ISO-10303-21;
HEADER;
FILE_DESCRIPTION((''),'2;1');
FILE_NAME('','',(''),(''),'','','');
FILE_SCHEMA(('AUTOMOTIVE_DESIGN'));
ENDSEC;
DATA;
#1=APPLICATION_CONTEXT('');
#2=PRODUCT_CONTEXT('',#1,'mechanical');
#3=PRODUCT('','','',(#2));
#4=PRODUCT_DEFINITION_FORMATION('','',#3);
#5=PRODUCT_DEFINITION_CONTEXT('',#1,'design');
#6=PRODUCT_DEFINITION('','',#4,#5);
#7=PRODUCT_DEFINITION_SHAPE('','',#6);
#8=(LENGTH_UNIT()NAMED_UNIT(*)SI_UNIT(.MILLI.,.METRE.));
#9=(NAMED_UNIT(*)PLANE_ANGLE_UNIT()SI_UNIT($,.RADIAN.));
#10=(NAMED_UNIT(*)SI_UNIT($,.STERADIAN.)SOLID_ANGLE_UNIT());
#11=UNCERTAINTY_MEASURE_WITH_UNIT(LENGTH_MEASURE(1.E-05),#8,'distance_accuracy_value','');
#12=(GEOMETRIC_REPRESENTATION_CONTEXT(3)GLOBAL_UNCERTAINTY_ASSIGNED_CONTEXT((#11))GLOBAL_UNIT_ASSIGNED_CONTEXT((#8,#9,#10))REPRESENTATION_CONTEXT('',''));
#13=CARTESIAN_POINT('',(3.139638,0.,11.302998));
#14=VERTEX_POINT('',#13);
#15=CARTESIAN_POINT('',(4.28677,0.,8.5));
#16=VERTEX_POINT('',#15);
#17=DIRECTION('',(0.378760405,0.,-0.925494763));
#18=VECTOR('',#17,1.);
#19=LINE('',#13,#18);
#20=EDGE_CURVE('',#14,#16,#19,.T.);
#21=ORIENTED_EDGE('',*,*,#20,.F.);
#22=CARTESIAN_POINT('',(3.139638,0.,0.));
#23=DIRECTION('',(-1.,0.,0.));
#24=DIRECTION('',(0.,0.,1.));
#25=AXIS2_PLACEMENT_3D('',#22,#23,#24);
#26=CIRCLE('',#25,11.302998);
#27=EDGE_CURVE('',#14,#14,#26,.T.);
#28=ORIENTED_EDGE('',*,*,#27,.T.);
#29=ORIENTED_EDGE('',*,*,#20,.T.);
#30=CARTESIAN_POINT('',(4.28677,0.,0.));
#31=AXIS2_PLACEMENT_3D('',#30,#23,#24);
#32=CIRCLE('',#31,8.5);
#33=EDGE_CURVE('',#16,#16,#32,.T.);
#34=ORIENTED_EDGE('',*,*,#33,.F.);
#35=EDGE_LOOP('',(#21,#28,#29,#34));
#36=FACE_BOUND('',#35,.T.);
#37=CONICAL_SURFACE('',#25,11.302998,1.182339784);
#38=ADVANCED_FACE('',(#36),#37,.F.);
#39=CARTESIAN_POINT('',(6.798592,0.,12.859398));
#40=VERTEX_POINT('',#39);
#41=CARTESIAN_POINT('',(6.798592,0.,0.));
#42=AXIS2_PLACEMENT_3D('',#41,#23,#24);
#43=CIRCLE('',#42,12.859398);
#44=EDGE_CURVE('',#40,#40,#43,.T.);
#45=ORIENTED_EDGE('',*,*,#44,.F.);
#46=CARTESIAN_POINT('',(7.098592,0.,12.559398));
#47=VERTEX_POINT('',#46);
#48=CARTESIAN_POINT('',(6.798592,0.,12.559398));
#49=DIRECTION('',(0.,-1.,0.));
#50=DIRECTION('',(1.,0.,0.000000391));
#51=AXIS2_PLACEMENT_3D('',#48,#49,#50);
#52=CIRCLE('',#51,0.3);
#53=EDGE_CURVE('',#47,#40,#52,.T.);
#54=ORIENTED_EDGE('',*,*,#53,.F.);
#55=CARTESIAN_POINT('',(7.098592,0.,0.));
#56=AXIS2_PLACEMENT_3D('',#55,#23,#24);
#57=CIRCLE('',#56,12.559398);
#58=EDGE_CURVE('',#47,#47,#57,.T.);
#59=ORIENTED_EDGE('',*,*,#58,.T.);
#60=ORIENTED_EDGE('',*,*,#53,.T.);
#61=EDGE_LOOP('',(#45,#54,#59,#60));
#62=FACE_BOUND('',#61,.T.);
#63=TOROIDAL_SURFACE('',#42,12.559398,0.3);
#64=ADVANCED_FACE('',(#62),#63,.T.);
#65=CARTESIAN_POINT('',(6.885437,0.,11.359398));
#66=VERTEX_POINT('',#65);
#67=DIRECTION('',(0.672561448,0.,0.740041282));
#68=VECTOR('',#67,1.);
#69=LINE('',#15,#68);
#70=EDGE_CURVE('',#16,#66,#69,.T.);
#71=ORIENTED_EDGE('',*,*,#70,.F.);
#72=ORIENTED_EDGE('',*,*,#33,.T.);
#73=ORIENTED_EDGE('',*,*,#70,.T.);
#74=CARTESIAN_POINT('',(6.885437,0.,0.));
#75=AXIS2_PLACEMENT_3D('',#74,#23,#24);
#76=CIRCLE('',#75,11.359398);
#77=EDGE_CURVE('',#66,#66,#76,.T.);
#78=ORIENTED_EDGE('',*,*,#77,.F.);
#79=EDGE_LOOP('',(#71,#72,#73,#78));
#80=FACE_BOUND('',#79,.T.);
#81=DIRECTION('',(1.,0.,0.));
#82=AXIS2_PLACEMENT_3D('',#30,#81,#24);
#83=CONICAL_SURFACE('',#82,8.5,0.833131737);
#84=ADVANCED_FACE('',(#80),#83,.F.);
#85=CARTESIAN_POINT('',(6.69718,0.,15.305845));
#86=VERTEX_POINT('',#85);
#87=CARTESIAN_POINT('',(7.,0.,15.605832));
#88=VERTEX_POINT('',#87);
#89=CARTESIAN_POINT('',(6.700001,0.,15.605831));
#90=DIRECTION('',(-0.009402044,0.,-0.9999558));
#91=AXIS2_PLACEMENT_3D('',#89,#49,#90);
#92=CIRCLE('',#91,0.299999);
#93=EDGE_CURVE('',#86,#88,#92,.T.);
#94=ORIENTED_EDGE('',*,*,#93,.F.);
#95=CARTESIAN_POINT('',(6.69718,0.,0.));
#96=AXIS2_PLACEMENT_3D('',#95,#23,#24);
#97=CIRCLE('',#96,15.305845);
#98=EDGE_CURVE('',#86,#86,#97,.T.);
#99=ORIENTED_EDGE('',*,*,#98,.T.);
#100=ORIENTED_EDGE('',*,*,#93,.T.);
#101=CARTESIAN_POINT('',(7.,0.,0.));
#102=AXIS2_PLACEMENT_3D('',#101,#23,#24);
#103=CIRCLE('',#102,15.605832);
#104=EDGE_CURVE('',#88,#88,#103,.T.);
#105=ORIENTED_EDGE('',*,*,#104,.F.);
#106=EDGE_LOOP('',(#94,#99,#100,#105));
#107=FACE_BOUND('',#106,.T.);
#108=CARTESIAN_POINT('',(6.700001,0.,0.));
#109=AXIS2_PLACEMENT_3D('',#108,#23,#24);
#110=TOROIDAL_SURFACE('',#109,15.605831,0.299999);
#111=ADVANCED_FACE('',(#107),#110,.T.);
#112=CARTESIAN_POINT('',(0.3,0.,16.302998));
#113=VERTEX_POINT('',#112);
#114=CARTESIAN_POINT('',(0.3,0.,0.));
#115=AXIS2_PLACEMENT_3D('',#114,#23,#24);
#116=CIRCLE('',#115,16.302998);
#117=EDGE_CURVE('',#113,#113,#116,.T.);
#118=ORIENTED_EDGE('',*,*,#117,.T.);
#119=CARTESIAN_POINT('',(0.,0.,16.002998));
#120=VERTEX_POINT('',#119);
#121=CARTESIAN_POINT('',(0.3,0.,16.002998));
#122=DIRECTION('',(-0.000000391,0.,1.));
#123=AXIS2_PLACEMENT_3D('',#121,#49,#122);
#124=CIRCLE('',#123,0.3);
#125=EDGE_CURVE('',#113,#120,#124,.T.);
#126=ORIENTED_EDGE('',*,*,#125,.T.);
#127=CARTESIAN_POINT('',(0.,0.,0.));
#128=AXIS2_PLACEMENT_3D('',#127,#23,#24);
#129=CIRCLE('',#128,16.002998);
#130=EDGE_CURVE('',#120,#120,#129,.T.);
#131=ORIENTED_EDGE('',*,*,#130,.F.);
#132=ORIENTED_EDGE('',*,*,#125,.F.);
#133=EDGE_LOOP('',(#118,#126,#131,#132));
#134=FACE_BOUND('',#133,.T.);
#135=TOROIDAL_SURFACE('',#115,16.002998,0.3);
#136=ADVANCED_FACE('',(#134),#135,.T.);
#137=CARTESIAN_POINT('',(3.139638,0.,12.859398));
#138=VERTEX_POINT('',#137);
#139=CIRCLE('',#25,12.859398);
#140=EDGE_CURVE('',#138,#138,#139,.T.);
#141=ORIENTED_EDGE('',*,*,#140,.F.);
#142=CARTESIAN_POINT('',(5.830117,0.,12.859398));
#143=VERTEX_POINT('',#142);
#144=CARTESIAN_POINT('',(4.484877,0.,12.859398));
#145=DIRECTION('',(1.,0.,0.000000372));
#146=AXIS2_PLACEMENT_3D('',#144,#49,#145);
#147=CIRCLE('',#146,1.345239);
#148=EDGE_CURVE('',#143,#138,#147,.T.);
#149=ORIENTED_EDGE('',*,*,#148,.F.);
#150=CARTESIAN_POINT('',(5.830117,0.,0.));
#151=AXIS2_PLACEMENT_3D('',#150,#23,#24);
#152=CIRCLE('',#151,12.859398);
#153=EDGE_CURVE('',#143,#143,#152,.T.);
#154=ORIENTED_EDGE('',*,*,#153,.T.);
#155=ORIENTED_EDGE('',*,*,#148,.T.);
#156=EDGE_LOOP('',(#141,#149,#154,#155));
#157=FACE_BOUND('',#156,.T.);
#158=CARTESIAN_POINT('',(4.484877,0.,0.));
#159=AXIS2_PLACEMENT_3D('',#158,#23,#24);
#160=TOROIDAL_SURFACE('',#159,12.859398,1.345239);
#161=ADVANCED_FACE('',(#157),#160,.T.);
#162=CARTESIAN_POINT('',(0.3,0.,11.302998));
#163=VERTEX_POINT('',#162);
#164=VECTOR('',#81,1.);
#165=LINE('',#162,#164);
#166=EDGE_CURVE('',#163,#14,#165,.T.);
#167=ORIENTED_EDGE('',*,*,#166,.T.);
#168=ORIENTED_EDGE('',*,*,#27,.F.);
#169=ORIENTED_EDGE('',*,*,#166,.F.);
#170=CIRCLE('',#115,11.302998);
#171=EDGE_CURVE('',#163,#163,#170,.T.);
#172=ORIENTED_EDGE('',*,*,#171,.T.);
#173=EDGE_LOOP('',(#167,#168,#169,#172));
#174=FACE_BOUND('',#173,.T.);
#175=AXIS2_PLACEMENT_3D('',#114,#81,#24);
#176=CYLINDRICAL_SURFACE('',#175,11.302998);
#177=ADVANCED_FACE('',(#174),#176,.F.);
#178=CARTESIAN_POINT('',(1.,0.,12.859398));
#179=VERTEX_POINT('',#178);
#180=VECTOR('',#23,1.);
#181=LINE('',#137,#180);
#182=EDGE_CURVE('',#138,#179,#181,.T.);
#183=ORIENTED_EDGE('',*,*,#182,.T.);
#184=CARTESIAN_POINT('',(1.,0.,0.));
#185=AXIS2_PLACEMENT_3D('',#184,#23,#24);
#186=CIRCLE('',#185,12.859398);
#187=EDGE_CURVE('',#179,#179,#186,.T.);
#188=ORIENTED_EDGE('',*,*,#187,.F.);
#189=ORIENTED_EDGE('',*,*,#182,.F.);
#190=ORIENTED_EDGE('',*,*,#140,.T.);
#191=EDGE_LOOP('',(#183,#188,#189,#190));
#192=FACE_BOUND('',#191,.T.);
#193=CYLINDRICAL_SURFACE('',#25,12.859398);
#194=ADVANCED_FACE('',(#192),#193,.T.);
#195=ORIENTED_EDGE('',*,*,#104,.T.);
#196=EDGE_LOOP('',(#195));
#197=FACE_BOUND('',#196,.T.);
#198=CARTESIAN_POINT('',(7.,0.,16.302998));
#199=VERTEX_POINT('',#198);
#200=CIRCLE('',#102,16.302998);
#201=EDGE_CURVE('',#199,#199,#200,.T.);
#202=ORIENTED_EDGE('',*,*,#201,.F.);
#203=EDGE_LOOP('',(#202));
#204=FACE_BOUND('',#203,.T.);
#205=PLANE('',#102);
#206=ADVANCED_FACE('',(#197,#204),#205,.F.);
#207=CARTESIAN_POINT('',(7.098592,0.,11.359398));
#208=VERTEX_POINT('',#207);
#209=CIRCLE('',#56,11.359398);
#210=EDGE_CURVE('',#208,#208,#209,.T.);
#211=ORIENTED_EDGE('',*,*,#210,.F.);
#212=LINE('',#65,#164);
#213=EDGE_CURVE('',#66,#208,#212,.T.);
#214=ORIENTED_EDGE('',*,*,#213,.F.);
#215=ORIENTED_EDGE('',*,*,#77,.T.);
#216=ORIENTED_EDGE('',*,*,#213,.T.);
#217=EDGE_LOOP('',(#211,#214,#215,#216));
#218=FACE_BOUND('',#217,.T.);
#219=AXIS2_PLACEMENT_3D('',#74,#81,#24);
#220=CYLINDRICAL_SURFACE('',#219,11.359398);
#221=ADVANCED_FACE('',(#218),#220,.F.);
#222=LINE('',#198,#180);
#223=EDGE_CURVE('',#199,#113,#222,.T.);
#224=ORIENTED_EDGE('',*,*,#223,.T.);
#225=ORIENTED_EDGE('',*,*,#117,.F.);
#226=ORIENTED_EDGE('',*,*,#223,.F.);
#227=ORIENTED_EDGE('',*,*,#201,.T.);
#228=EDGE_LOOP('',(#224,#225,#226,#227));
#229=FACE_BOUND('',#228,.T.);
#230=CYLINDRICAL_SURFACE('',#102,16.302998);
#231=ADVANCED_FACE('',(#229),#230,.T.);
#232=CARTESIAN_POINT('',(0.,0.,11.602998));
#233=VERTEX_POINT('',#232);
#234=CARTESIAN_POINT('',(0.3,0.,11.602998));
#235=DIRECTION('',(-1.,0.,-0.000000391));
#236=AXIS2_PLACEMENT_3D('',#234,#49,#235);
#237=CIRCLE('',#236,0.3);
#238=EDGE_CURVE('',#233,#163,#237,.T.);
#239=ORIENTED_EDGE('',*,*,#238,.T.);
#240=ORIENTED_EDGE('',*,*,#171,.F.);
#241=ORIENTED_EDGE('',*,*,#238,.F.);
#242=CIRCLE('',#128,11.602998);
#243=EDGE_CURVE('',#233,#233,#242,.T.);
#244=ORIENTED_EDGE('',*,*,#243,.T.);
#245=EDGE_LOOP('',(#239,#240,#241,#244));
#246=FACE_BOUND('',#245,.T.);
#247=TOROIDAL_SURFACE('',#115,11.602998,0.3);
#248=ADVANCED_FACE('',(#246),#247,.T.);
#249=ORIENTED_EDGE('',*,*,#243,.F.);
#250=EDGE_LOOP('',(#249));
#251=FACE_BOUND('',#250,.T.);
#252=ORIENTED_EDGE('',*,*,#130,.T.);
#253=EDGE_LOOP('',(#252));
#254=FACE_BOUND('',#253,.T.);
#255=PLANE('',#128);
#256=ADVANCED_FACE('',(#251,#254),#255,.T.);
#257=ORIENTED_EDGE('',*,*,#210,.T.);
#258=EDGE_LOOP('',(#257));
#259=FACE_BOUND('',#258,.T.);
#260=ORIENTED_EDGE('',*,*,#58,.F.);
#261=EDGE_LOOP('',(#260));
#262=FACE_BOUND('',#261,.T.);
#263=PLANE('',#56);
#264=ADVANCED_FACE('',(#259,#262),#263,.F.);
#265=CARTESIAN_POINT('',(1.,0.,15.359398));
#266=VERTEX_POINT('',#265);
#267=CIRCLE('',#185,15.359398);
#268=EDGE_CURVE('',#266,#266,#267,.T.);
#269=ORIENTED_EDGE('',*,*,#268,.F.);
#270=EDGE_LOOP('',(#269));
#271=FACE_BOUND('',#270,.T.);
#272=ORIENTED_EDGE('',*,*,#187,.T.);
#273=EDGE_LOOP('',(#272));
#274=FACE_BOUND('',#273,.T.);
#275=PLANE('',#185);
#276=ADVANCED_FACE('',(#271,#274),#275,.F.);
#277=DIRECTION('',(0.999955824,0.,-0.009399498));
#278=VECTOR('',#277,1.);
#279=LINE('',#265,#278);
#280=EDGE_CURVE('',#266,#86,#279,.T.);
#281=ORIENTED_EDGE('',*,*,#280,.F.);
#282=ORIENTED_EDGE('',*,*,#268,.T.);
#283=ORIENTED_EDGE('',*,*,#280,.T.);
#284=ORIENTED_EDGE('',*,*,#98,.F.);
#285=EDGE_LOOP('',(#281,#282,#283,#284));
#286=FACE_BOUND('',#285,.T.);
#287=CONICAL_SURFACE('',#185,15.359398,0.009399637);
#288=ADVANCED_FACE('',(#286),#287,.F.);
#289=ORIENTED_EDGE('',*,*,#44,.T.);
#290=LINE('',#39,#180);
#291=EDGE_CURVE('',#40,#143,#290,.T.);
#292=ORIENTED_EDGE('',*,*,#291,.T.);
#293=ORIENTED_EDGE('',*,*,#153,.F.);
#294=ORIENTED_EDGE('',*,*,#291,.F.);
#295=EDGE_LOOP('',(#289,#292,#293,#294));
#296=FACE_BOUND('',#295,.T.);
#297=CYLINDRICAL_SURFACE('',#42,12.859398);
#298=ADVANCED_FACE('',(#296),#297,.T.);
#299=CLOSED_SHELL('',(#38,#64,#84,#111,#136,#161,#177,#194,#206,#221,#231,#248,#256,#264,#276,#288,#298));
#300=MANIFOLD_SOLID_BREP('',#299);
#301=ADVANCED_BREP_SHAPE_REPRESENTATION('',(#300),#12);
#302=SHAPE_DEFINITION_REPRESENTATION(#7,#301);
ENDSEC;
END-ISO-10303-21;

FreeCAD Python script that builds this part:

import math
import FreeCAD as App
import Part
import Sketcher
Q = App.Units.Quantity

doc = App.newDocument("Part")
body = doc.addObject("PartDesign::Body", "Body")

# Sketch on XZ plane
sketch1 = doc.addObject("Sketcher::SketchObject", "Sketch")
body.addObject(sketch1)
sketch1.AttachmentSupport = (doc.XZ_Plane, [""])
sketch1.MapMode = "FlatFace"
sketch1.addGeometry([
    Part.LineSegment(App.Vector(7, 15.61, 0), App.Vector(7, 16.3, 0)),  # 0
    Part.LineSegment(App.Vector(7, 16.3, 0), App.Vector(0.3, 16.3, 0)),  # 1
    Part.ArcOfCircle(Part.Circle(App.Vector(0.3, 16, 0), App.Vector(0, 0, 1), 0.3), math.radians(90), math.radians(180)),  # 2
    Part.LineSegment(App.Vector(0, 16, 0), App.Vector(0, 11.6, 0)),  # 3
    Part.ArcOfCircle(Part.Circle(App.Vector(0.3, 11.6, 0), App.Vector(0, 0, 1), 0.3), math.radians(-180), math.radians(-90)),  # 4
    Part.LineSegment(App.Vector(0.3, 11.3, 0), App.Vector(3.14, 11.3, 0)),  # 5
    Part.LineSegment(App.Vector(3.14, 11.3, 0), App.Vector(4.29, 8.5, 0)),  # 6
    Part.LineSegment(App.Vector(4.29, 8.5, 0), App.Vector(6.89, 11.36, 0)),  # 7
    Part.LineSegment(App.Vector(6.89, 11.36, 0), App.Vector(7.1, 11.36, 0)),  # 8
    Part.LineSegment(App.Vector(7.1, 11.36, 0), App.Vector(7.1, 12.56, 0)),  # 9
    Part.ArcOfCircle(Part.Circle(App.Vector(6.8, 12.56, 0), App.Vector(0, 0, 1), 0.3), math.radians(0), math.radians(90)),  # 10
    Part.LineSegment(App.Vector(6.8, 12.86, 0), App.Vector(5.83, 12.86, 0)),  # 11
    Part.ArcOfCircle(Part.Circle(App.Vector(4.48, 12.86, 0), App.Vector(0, 0, 1), 1.35), math.radians(0), math.radians(180)),  # 12
    Part.LineSegment(App.Vector(3.14, 12.86, 0), App.Vector(1, 12.86, 0)),  # 13
    Part.LineSegment(App.Vector(1, 12.86, 0), App.Vector(1, 15.36, 0)),  # 14
    Part.LineSegment(App.Vector(1, 15.36, 0), App.Vector(6.7, 15.31, 0)),  # 15
    Part.ArcOfCircle(Part.Circle(App.Vector(6.7, 15.61, 0), App.Vector(0, 0, 1), 0.3), math.radians(-91), math.radians(0)),  # 16
], False)
sketch1.addConstraint([
    Sketcher.Constraint("Coincident", 0, 2, 1, 1),
    Sketcher.Constraint("Tangent", 1, 2, 2, 1),
    Sketcher.Constraint("Tangent", 2, 2, 3, 1),
    Sketcher.Constraint("Tangent", 3, 2, 4, 1),
    Sketcher.Constraint("Tangent", 4, 2, 5, 1),
    Sketcher.Constraint("Coincident", 5, 2, 6, 1),
    Sketcher.Constraint("Coincident", 6, 2, 7, 1),
    Sketcher.Constraint("Coincident", 7, 2, 8, 1),
    Sketcher.Constraint("Coincident", 8, 2, 9, 1),
    Sketcher.Constraint("Tangent", 9, 2, 10, 1),
    Sketcher.Constraint("Tangent", 10, 2, 11, 1),
    Sketcher.Constraint("Coincident", 11, 2, 12, 1),
    Sketcher.Constraint("Coincident", 12, 2, 13, 1),
    Sketcher.Constraint("Coincident", 13, 2, 14, 1),
    Sketcher.Constraint("Coincident", 14, 2, 15, 1),
    Sketcher.Constraint("Coincident", 15, 2, 16, 1),
    Sketcher.Constraint("Coincident", 16, 2, 0, 1),
    Sketcher.Constraint("Vertical", 0),
    Sketcher.Constraint("Horizontal", 1),
    Sketcher.Constraint("Vertical", 3),
    Sketcher.Constraint("Horizontal", 5),
    Sketcher.Constraint("Horizontal", 8),
    Sketcher.Constraint("Vertical", 9),
    Sketcher.Constraint("Horizontal", 11),
    Sketcher.Constraint("Horizontal", 13),
    Sketcher.Constraint("Vertical", 14),
    Sketcher.Constraint("Equal", 2, 4),
    Sketcher.Constraint("Equal", 4, 10),
    Sketcher.Constraint("Equal", 10, 16),
    Sketcher.Constraint("PointOnObject", 2, 2, -2),
    Sketcher.Constraint("Horizontal", 12, 3, 10, 2),
    Sketcher.Constraint("Horizontal", 11, 2, 12, 2),
    Sketcher.Constraint("Vertical", 5, 2, 12, 2),
    Sketcher.Constraint("Radius", 2, Q("0.3 mm")),
    Sketcher.Constraint("DistanceX", 1, 2, 1, 1, Q("6.7 mm")),
    Sketcher.Constraint("DistanceY", 3, 2, 3, 1, Q("4.4 mm")),
    Sketcher.Constraint("DistanceY", 9, 1, 9, 2, Q("1.2 mm")),
    Sketcher.Constraint("DistanceY", 14, 1, 14, 2, Q("2.5 mm")),
    Sketcher.Constraint("DistanceX", -1, 1, 13, 2, Q("1 mm")),
    Sketcher.Constraint("DistanceY", -1, 1, 6, 2, Q("8.5 mm")),
    Sketcher.Constraint("Radius", 12, Q("1.345239 mm")),
    Sketcher.Constraint("DistanceY", -1, 1, 4, 3, Q("11.602998 mm")),
    Sketcher.Constraint("DistanceX", 5, 1, 5, 2, Q("2.839638 mm")),
    Sketcher.Constraint("DistanceY", 4, 3, 10, 3, Q("0.9564 mm")),
    Sketcher.Constraint("DistanceX", 5, 2, 7, 2, Q("3.745799 mm")),
    Sketcher.Constraint("Distance", 6, Q("3.028648 mm")),
    Sketcher.Constraint("Distance", 15, Q("5.697432 mm")),
    Sketcher.Constraint("DistanceX", 8, 1, 8, 2, Q("0.213155 mm")),
    Sketcher.Constraint("DistanceY", 0, 1, 0, 2, Q("0.697166 mm")),
    Sketcher.Constraint("DistanceY", -1, 1, 16, 3, Q("15.605831 mm")),
])
revolution = doc.addObject("PartDesign::Revolution", "Revolution")
body.addObject(revolution)
revolution.Profile = sketch1
revolution.ReferenceAxis = (sketch1, ["H_Axis"])
revolution.Angle = 360

doc.recompute()
